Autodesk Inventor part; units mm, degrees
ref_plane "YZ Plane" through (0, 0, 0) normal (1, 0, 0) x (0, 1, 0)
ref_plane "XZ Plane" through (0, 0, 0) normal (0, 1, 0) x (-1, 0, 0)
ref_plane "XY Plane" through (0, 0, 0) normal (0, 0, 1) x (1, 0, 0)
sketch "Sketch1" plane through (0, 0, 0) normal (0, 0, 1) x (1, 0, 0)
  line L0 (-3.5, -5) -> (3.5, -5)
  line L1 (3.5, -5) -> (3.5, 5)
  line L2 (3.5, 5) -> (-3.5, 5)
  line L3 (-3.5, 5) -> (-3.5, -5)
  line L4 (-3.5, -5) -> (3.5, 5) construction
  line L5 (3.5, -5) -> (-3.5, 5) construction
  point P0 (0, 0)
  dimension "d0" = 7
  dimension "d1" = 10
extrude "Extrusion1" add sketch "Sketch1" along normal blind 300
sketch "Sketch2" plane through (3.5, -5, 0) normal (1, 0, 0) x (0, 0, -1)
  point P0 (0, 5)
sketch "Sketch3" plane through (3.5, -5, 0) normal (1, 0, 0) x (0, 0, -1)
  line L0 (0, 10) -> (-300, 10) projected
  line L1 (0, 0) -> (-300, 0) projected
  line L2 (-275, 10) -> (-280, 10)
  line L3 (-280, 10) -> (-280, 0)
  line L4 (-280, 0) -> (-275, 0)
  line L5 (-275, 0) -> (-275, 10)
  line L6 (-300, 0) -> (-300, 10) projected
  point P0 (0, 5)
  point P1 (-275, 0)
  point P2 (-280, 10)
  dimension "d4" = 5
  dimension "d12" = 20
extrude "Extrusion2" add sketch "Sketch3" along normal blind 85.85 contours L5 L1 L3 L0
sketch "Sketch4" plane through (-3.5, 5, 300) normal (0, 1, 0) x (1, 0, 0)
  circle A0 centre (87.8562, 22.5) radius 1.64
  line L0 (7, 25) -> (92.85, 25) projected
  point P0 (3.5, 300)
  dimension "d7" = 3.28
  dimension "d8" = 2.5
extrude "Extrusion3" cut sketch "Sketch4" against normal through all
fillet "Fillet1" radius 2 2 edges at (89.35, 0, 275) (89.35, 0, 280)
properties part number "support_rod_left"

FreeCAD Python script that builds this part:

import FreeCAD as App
import Part
import Sketcher

V = App.Vector
Q = App.Units.Quantity


def edges_at(feature, points):
    """Names of the edges that pass closest to the given points."""
    edges = feature.Shape.Edges
    near = lambda p: min(range(len(edges)), key=lambda i: edges[i].distToShape(Part.Vertex(*p))[0])
    return sorted({f"Edge{near(p) + 1}" for p in points})

doc = App.newDocument("Part")
body = doc.addObject("PartDesign::Body", "Body")

# Sketch on XY plane
sketch1 = body.newObject("Sketcher::SketchObject", "Sketch")
sketch1.AttachmentSupport = (doc.getObject("XY_Plane"), [""])
sketch1.MapMode = "FlatFace"
sketch1.addGeometry(Part.LineSegment(V(-4, 5, 0), V(-4, -5, 0)), False)
sketch1.addGeometry(Part.LineSegment(V(-4, -5, 0), V(4, -5, 0)), False)
sketch1.addGeometry(Part.LineSegment(V(4, -5, 0), V(4, 5, 0)), False)
sketch1.addGeometry(Part.LineSegment(V(4, 5, 0), V(-4, 5, 0)), False)
sketch1.addConstraint(Sketcher.Constraint("Coincident", 0, 2, 1, 1))
sketch1.addConstraint(Sketcher.Constraint("Coincident", 1, 2, 2, 1))
sketch1.addConstraint(Sketcher.Constraint("Coincident", 2, 2, 3, 1))
sketch1.addConstraint(Sketcher.Constraint("Coincident", 3, 2, 0, 1))
sketch1.addConstraint(Sketcher.Constraint("Vertical", 0))
sketch1.addConstraint(Sketcher.Constraint("Horizontal", 1))
sketch1.addConstraint(Sketcher.Constraint("Vertical", 2))
sketch1.addConstraint(Sketcher.Constraint("Horizontal", 3))
sketch1.addConstraint(Sketcher.Constraint("Symmetric", 0, 2, 2, 2, -1, 1))
sketch1.addConstraint(Sketcher.Constraint("DistanceX", 1, 1, 1, 2, Q("7 mm")))
sketch1.addConstraint(Sketcher.Constraint("DistanceY", 0, 2, 0, 1, Q("10 mm")))
pad1 = body.newObject("PartDesign::Pad", "Pad")
pad1.Profile = sketch1
pad1.Length = 300

# Sketch on YZ plane
sketch2 = body.newObject("Sketcher::SketchObject", "Sketch001")
sketch2.AttachmentSupport = (doc.getObject("YZ_Plane"), [""])
sketch2.MapMode = "FlatFace"
sketch2.AttachmentOffset = App.Placement(V(0, 0, 3.5), App.Rotation())
sketch2.addGeometry(Part.LineSegment(V(-5, 275, 0), V(5, 275, 0)), False)
sketch2.addGeometry(Part.LineSegment(V(5, 275, 0), V(5, 280, 0)), False)
sketch2.addGeometry(Part.LineSegment(V(5, 280, 0), V(-5, 280, 0)), False)
sketch2.addGeometry(Part.LineSegment(V(-5, 280, 0), V(-5, 275, 0)), False)
sketch2.addConstraint(Sketcher.Constraint("Coincident", 0, 2, 1, 1))
sketch2.addConstraint(Sketcher.Constraint("Coincident", 1, 2, 2, 1))
sketch2.addConstraint(Sketcher.Constraint("Coincident", 2, 2, 3, 1))
sketch2.addConstraint(Sketcher.Constraint("Coincident", 3, 2, 0, 1))
sketch2.addConstraint(Sketcher.Constraint("Horizontal", 0))
sketch2.addConstraint(Sketcher.Constraint("Vertical", 1))
sketch2.addConstraint(Sketcher.Constraint("Horizontal", 2))
sketch2.addConstraint(Sketcher.Constraint("Vertical", 3))
sketch2.addConstraint(Sketcher.Constraint("DistanceY", 1, 1, 1, 2, Q("5 mm")))
sketch2.addConstraint(Sketcher.Constraint("DistanceX", -1, 1, 0, 2, Q("5 mm")))
sketch2.addConstraint(Sketcher.Constraint("DistanceX", 2, 2, -1, 1, Q("5 mm")))
sketch2.addConstraint(Sketcher.Constraint("DistanceY", -1, 1, 0, 2, Q("275 mm")))
pad2 = body.newObject("PartDesign::Pad", "Pad001")
pad2.Profile = sketch2
pad2.Length = 85.85

# Sketch on XZ plane
sketch3 = body.newObject("Sketcher::SketchObject", "Sketch002")
sketch3.AttachmentSupport = (doc.getObject("XZ_Plane"), [""])
sketch3.MapMode = "FlatFace"
sketch3.AttachmentOffset = App.Placement(V(0, 0, -5), App.Rotation())
sketch3.addGeometry(Part.Circle(V(84.4, 277.5, 0), V(0, 0, 1), 1.6), False)
sketch3.addConstraint(Sketcher.Constraint("Diameter", 0, Q("3.28 mm")))
sketch3.addConstraint(Sketcher.Constraint("DistanceY", -1, 1, 0, 3, Q("277.5 mm")))
sketch3.addConstraint(Sketcher.Constraint("DistanceX", -1, 1, 0, 3, Q("84.3562 mm")))
pocket1 = body.newObject("PartDesign::Pocket", "Pocket")
pocket1.Profile = sketch3
pocket1.Type = "ThroughAll"
pocket1.Reversed = True
doc.recompute()

fillet = body.newObject("PartDesign::Fillet", "Fillet")
fillet.Base = (pocket1, edges_at(pocket1, [(89.35, 0, 275), (89.35, 0, 280)]))
fillet.Radius = 2

doc.recompute()
